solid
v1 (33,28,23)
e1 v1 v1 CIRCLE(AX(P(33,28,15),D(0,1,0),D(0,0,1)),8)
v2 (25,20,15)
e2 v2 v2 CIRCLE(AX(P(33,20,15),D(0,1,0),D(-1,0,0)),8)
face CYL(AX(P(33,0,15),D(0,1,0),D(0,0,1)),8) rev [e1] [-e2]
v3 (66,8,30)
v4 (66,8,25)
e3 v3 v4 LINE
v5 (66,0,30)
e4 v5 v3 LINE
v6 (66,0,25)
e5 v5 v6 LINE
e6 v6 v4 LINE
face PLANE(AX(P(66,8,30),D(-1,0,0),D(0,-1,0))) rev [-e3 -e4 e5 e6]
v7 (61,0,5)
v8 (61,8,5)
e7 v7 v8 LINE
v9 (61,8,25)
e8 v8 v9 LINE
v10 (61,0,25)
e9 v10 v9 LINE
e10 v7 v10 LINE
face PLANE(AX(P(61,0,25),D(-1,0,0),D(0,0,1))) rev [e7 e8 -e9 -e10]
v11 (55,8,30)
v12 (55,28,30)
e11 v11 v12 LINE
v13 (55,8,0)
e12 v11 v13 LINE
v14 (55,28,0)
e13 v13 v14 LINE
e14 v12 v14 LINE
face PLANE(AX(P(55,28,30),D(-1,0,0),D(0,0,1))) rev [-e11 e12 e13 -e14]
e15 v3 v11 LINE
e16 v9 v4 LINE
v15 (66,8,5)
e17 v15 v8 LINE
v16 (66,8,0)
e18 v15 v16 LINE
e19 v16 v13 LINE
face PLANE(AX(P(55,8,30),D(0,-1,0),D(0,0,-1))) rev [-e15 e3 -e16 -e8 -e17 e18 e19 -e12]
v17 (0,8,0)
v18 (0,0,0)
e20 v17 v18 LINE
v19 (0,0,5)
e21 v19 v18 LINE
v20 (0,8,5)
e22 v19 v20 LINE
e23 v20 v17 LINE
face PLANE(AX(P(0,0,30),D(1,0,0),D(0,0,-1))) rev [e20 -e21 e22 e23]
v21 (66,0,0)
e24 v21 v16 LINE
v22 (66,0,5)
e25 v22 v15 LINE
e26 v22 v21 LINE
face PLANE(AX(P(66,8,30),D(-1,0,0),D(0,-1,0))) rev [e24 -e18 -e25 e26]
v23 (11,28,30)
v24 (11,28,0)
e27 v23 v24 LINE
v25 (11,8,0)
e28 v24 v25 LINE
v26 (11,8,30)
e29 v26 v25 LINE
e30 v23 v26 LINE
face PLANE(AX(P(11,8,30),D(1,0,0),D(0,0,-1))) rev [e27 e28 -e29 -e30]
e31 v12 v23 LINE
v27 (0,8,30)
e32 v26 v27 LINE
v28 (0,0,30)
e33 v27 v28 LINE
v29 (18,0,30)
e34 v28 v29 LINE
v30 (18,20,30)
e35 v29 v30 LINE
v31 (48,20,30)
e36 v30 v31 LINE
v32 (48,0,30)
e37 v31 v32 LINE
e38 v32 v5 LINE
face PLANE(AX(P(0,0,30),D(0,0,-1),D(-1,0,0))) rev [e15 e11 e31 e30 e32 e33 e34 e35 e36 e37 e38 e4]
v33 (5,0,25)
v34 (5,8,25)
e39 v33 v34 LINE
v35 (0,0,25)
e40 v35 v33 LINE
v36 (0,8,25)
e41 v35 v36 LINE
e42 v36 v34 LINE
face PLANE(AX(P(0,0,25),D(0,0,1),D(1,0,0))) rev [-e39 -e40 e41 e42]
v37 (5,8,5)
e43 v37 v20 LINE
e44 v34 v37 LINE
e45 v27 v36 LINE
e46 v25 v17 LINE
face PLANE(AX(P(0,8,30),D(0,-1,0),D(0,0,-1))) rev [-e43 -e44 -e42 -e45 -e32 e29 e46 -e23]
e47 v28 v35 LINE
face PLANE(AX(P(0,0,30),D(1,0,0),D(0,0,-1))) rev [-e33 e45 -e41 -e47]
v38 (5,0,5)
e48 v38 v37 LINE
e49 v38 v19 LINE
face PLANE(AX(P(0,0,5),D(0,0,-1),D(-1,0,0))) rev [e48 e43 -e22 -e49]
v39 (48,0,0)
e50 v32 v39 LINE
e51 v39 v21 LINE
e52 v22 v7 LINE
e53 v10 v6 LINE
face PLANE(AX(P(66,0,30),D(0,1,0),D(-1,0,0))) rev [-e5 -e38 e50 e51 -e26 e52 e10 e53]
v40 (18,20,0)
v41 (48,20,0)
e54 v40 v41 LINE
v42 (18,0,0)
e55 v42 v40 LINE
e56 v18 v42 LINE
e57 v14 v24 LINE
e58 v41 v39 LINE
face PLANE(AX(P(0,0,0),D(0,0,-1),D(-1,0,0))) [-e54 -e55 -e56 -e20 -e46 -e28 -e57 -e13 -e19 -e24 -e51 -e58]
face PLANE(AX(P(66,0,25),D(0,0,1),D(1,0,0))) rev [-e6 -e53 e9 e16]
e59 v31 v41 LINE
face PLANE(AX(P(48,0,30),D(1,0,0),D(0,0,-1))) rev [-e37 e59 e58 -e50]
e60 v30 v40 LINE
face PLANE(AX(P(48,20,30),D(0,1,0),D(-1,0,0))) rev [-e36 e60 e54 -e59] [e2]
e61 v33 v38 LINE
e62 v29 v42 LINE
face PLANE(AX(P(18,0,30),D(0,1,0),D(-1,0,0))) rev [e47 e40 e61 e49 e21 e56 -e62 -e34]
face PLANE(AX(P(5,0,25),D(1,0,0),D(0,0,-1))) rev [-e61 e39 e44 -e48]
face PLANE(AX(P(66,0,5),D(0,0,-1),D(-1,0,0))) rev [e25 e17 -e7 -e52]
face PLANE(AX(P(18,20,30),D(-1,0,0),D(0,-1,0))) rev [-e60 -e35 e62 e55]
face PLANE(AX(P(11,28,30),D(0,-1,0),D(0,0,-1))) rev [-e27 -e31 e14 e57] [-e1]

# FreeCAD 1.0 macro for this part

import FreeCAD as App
import Part
import Sketcher
from FreeCAD import Vector
Q = App.Units.Quantity


def add_polygon(sketch, points):
    """Adds a closed chain of lines whose ends are joined by coincident constraints."""
    first, n = sketch.GeometryCount, len(points)
    for a, b in zip(points, points[1:] + points[:1]):
        sketch.addGeometry(Part.LineSegment(App.Vector(*a, 0), App.Vector(*b, 0)), False)
    for i in range(n):
        sketch.addConstraint(Sketcher.Constraint("Coincident", first + i, 2, first + (i + 1) % n, 1))

doc = App.newDocument("Part")
params = doc.addObject("Spreadsheet::Sheet", "Params")
for row, (alias, value) in enumerate([
    ("sketch1_width", "18 mm"),
    ("sketch1_width2", "30 mm"),
    ("sketch1_width3", "11 mm"),
    ("sketch1_height", "8 mm"),
    ("sketch1_height2", "20 mm"),
    ("pad1_length", "30 mm"),
    ("sketch2_width", "5 mm"),
    ("sketch2_height", "20 mm"),
    ("sketch3_diameter", "16 mm"),
], start=1):
    params.set(f"A{row}", alias)
    params.set(f"B{row}", "=" + value)
    params.setAlias(f"B{row}", alias)

body = doc.addObject("PartDesign::Body", "Body")

sketch1 = body.newObject("Sketcher::SketchObject", "Sketch")
sketch1.AttachmentSupport = (doc.getObject("XY_Plane"), [""])
sketch1.MapMode = "FlatFace"
add_polygon(sketch1, [(0, 8), (0, 0), (18, 0), (18, 20), (48, 20), (48, 0), (66, 0), (66, 8), (55, 8), (55, 28), (11, 28), (11, 8)])
sketch1.addConstraint(Sketcher.Constraint("Vertical", 0))
sketch1.addConstraint(Sketcher.Constraint("Horizontal", 1))
sketch1.addConstraint(Sketcher.Constraint("Vertical", 2))
sketch1.addConstraint(Sketcher.Constraint("Horizontal", 3))
sketch1.addConstraint(Sketcher.Constraint("Vertical", 4))
sketch1.addConstraint(Sketcher.Constraint("Horizontal", 5))
sketch1.addConstraint(Sketcher.Constraint("Vertical", 6))
sketch1.addConstraint(Sketcher.Constraint("Horizontal", 7))
sketch1.addConstraint(Sketcher.Constraint("Vertical", 8))
sketch1.addConstraint(Sketcher.Constraint("Horizontal", 9))
sketch1.addConstraint(Sketcher.Constraint("Vertical", 10))
sketch1.addConstraint(Sketcher.Constraint("Horizontal", 11))
sketch1.addConstraint(Sketcher.Constraint("Coincident", 0, 2, -1, 1))
sketch1.addConstraint(Sketcher.Constraint("PointOnObject", 4, 2, -1))
sketch1.addConstraint(Sketcher.Constraint("Horizontal", 7, 2, 10, 2))
sketch1.addConstraint(Sketcher.Constraint("Equal", 1, 5))
sketch1.addConstraint(Sketcher.Constraint("Equal", 7, 11))
sketch1.addConstraint(Sketcher.Constraint("Equal", 4, 8))
sketch1.addConstraint(Sketcher.Constraint("DistanceX", 1, 1, 1, 2, Q("18 mm")))
sketch1.addConstraint(Sketcher.Constraint("DistanceX", 3, 1, 3, 2, Q("30 mm")))
sketch1.addConstraint(Sketcher.Constraint("DistanceX", 7, 2, 7, 1, Q("11 mm")))
sketch1.addConstraint(Sketcher.Constraint("DistanceY", 0, 2, 0, 1, Q("8 mm")))
sketch1.addConstraint(Sketcher.Constraint("DistanceY", 2, 1, 2, 2, Q("20 mm")))
sketch1.setExpression("Constraints[30]", "Params.sketch1_width")
sketch1.setExpression("Constraints[31]", "Params.sketch1_width2")
sketch1.setExpression("Constraints[32]", "Params.sketch1_width3")
sketch1.setExpression("Constraints[33]", "Params.sketch1_height")
sketch1.setExpression("Constraints[34]", "Params.sketch1_height2")
pad1 = body.newObject("PartDesign::Pad", "Pad")
pad1.Profile = sketch1
pad1.setExpression("Length", "Params.pad1_length")

sketch2 = body.newObject("Sketcher::SketchObject", "Sketch001")
sketch2.AttachmentSupport = (doc.getObject("XZ_Plane"), [""])
sketch2.MapMode = "FlatFace"
sketch2.AttachmentOffset = App.Placement(Vector(0, 0, -8), App.Rotation())
add_polygon(sketch2, [(0, 5), (0, 25), (5, 25), (5, 5)])
add_polygon(sketch2, [(61, 5), (61, 25), (66, 25), (66, 5)])
sketch2.addConstraint(Sketcher.Constraint("Vertical", 0))
sketch2.addConstraint(Sketcher.Constraint("Horizontal", 1))
sketch2.addConstraint(Sketcher.Constraint("Vertical", 2))
sketch2.addConstraint(Sketcher.Constraint("Horizontal", 3))
sketch2.addConstraint(Sketcher.Constraint("Vertical", 4))
sketch2.addConstraint(Sketcher.Constraint("Horizontal", 5))
sketch2.addConstraint(Sketcher.Constraint("Vertical", 6))
sketch2.addConstraint(Sketcher.Constraint("Horizontal", 7))
sketch2.addConstraint(Sketcher.Constraint("PointOnObject", 0, 2, -2))
sketch2.addConstraint(Sketcher.Constraint("Horizontal", 1, 2, 4, 2))
sketch2.addConstraint(Sketcher.Constraint("Horizontal", 3, 2, 6, 2))
sketch2.addConstraint(Sketcher.Constraint("Equal", 3, 5))
sketch2.addConstraint(Sketcher.Constraint("DistanceX", 1, 1, 1, 2, Q("5 mm")))
sketch2.addConstraint(Sketcher.Constraint("DistanceY", 0, 1, 0, 2, Q("20 mm")))
sketch2.addConstraint(Sketcher.Constraint("DistanceY", -1, 1, 0, 2, Q("25 mm")))
sketch2.addConstraint(Sketcher.Constraint("DistanceX", -1, 1, 4, 2, Q("61 mm")))
sketch2.setExpression("Constraints[20]", "Params.sketch2_width")
sketch2.setExpression("Constraints[21]", "Params.sketch2_height")
pocket1 = body.newObject("PartDesign::Pocket", "Pocket")
pocket1.Profile = sketch2
pocket1.Type = "ThroughAll"
pocket1.Reversed = True

sketch3 = body.newObject("Sketcher::SketchObject", "Sketch002")
sketch3.AttachmentSupport = (doc.getObject("XZ_Plane"), [""])
sketch3.MapMode = "FlatFace"
sketch3.AttachmentOffset = App.Placement(Vector(0, 0, -28), App.Rotation())
sketch3.addGeometry(Part.Circle(Vector(33, 15, 0), Vector(0, 0, 1), 8), False)
sketch3.addConstraint(Sketcher.Constraint("Diameter", 0, Q("16 mm")))
sketch3.addConstraint(Sketcher.Constraint("DistanceX", -1, 1, 0, 3, Q("33 mm")))
sketch3.addConstraint(Sketcher.Constraint("DistanceY", -1, 1, 0, 3, Q("15 mm")))
sketch3.setExpression("Constraints[0]", "Params.sketch3_diameter")
pocket2 = body.newObject("PartDesign::Pocket", "Pocket001")
pocket2.Profile = sketch3
pocket2.Type = "ThroughAll"
pocket2.Reversed = True

doc.recompute()
